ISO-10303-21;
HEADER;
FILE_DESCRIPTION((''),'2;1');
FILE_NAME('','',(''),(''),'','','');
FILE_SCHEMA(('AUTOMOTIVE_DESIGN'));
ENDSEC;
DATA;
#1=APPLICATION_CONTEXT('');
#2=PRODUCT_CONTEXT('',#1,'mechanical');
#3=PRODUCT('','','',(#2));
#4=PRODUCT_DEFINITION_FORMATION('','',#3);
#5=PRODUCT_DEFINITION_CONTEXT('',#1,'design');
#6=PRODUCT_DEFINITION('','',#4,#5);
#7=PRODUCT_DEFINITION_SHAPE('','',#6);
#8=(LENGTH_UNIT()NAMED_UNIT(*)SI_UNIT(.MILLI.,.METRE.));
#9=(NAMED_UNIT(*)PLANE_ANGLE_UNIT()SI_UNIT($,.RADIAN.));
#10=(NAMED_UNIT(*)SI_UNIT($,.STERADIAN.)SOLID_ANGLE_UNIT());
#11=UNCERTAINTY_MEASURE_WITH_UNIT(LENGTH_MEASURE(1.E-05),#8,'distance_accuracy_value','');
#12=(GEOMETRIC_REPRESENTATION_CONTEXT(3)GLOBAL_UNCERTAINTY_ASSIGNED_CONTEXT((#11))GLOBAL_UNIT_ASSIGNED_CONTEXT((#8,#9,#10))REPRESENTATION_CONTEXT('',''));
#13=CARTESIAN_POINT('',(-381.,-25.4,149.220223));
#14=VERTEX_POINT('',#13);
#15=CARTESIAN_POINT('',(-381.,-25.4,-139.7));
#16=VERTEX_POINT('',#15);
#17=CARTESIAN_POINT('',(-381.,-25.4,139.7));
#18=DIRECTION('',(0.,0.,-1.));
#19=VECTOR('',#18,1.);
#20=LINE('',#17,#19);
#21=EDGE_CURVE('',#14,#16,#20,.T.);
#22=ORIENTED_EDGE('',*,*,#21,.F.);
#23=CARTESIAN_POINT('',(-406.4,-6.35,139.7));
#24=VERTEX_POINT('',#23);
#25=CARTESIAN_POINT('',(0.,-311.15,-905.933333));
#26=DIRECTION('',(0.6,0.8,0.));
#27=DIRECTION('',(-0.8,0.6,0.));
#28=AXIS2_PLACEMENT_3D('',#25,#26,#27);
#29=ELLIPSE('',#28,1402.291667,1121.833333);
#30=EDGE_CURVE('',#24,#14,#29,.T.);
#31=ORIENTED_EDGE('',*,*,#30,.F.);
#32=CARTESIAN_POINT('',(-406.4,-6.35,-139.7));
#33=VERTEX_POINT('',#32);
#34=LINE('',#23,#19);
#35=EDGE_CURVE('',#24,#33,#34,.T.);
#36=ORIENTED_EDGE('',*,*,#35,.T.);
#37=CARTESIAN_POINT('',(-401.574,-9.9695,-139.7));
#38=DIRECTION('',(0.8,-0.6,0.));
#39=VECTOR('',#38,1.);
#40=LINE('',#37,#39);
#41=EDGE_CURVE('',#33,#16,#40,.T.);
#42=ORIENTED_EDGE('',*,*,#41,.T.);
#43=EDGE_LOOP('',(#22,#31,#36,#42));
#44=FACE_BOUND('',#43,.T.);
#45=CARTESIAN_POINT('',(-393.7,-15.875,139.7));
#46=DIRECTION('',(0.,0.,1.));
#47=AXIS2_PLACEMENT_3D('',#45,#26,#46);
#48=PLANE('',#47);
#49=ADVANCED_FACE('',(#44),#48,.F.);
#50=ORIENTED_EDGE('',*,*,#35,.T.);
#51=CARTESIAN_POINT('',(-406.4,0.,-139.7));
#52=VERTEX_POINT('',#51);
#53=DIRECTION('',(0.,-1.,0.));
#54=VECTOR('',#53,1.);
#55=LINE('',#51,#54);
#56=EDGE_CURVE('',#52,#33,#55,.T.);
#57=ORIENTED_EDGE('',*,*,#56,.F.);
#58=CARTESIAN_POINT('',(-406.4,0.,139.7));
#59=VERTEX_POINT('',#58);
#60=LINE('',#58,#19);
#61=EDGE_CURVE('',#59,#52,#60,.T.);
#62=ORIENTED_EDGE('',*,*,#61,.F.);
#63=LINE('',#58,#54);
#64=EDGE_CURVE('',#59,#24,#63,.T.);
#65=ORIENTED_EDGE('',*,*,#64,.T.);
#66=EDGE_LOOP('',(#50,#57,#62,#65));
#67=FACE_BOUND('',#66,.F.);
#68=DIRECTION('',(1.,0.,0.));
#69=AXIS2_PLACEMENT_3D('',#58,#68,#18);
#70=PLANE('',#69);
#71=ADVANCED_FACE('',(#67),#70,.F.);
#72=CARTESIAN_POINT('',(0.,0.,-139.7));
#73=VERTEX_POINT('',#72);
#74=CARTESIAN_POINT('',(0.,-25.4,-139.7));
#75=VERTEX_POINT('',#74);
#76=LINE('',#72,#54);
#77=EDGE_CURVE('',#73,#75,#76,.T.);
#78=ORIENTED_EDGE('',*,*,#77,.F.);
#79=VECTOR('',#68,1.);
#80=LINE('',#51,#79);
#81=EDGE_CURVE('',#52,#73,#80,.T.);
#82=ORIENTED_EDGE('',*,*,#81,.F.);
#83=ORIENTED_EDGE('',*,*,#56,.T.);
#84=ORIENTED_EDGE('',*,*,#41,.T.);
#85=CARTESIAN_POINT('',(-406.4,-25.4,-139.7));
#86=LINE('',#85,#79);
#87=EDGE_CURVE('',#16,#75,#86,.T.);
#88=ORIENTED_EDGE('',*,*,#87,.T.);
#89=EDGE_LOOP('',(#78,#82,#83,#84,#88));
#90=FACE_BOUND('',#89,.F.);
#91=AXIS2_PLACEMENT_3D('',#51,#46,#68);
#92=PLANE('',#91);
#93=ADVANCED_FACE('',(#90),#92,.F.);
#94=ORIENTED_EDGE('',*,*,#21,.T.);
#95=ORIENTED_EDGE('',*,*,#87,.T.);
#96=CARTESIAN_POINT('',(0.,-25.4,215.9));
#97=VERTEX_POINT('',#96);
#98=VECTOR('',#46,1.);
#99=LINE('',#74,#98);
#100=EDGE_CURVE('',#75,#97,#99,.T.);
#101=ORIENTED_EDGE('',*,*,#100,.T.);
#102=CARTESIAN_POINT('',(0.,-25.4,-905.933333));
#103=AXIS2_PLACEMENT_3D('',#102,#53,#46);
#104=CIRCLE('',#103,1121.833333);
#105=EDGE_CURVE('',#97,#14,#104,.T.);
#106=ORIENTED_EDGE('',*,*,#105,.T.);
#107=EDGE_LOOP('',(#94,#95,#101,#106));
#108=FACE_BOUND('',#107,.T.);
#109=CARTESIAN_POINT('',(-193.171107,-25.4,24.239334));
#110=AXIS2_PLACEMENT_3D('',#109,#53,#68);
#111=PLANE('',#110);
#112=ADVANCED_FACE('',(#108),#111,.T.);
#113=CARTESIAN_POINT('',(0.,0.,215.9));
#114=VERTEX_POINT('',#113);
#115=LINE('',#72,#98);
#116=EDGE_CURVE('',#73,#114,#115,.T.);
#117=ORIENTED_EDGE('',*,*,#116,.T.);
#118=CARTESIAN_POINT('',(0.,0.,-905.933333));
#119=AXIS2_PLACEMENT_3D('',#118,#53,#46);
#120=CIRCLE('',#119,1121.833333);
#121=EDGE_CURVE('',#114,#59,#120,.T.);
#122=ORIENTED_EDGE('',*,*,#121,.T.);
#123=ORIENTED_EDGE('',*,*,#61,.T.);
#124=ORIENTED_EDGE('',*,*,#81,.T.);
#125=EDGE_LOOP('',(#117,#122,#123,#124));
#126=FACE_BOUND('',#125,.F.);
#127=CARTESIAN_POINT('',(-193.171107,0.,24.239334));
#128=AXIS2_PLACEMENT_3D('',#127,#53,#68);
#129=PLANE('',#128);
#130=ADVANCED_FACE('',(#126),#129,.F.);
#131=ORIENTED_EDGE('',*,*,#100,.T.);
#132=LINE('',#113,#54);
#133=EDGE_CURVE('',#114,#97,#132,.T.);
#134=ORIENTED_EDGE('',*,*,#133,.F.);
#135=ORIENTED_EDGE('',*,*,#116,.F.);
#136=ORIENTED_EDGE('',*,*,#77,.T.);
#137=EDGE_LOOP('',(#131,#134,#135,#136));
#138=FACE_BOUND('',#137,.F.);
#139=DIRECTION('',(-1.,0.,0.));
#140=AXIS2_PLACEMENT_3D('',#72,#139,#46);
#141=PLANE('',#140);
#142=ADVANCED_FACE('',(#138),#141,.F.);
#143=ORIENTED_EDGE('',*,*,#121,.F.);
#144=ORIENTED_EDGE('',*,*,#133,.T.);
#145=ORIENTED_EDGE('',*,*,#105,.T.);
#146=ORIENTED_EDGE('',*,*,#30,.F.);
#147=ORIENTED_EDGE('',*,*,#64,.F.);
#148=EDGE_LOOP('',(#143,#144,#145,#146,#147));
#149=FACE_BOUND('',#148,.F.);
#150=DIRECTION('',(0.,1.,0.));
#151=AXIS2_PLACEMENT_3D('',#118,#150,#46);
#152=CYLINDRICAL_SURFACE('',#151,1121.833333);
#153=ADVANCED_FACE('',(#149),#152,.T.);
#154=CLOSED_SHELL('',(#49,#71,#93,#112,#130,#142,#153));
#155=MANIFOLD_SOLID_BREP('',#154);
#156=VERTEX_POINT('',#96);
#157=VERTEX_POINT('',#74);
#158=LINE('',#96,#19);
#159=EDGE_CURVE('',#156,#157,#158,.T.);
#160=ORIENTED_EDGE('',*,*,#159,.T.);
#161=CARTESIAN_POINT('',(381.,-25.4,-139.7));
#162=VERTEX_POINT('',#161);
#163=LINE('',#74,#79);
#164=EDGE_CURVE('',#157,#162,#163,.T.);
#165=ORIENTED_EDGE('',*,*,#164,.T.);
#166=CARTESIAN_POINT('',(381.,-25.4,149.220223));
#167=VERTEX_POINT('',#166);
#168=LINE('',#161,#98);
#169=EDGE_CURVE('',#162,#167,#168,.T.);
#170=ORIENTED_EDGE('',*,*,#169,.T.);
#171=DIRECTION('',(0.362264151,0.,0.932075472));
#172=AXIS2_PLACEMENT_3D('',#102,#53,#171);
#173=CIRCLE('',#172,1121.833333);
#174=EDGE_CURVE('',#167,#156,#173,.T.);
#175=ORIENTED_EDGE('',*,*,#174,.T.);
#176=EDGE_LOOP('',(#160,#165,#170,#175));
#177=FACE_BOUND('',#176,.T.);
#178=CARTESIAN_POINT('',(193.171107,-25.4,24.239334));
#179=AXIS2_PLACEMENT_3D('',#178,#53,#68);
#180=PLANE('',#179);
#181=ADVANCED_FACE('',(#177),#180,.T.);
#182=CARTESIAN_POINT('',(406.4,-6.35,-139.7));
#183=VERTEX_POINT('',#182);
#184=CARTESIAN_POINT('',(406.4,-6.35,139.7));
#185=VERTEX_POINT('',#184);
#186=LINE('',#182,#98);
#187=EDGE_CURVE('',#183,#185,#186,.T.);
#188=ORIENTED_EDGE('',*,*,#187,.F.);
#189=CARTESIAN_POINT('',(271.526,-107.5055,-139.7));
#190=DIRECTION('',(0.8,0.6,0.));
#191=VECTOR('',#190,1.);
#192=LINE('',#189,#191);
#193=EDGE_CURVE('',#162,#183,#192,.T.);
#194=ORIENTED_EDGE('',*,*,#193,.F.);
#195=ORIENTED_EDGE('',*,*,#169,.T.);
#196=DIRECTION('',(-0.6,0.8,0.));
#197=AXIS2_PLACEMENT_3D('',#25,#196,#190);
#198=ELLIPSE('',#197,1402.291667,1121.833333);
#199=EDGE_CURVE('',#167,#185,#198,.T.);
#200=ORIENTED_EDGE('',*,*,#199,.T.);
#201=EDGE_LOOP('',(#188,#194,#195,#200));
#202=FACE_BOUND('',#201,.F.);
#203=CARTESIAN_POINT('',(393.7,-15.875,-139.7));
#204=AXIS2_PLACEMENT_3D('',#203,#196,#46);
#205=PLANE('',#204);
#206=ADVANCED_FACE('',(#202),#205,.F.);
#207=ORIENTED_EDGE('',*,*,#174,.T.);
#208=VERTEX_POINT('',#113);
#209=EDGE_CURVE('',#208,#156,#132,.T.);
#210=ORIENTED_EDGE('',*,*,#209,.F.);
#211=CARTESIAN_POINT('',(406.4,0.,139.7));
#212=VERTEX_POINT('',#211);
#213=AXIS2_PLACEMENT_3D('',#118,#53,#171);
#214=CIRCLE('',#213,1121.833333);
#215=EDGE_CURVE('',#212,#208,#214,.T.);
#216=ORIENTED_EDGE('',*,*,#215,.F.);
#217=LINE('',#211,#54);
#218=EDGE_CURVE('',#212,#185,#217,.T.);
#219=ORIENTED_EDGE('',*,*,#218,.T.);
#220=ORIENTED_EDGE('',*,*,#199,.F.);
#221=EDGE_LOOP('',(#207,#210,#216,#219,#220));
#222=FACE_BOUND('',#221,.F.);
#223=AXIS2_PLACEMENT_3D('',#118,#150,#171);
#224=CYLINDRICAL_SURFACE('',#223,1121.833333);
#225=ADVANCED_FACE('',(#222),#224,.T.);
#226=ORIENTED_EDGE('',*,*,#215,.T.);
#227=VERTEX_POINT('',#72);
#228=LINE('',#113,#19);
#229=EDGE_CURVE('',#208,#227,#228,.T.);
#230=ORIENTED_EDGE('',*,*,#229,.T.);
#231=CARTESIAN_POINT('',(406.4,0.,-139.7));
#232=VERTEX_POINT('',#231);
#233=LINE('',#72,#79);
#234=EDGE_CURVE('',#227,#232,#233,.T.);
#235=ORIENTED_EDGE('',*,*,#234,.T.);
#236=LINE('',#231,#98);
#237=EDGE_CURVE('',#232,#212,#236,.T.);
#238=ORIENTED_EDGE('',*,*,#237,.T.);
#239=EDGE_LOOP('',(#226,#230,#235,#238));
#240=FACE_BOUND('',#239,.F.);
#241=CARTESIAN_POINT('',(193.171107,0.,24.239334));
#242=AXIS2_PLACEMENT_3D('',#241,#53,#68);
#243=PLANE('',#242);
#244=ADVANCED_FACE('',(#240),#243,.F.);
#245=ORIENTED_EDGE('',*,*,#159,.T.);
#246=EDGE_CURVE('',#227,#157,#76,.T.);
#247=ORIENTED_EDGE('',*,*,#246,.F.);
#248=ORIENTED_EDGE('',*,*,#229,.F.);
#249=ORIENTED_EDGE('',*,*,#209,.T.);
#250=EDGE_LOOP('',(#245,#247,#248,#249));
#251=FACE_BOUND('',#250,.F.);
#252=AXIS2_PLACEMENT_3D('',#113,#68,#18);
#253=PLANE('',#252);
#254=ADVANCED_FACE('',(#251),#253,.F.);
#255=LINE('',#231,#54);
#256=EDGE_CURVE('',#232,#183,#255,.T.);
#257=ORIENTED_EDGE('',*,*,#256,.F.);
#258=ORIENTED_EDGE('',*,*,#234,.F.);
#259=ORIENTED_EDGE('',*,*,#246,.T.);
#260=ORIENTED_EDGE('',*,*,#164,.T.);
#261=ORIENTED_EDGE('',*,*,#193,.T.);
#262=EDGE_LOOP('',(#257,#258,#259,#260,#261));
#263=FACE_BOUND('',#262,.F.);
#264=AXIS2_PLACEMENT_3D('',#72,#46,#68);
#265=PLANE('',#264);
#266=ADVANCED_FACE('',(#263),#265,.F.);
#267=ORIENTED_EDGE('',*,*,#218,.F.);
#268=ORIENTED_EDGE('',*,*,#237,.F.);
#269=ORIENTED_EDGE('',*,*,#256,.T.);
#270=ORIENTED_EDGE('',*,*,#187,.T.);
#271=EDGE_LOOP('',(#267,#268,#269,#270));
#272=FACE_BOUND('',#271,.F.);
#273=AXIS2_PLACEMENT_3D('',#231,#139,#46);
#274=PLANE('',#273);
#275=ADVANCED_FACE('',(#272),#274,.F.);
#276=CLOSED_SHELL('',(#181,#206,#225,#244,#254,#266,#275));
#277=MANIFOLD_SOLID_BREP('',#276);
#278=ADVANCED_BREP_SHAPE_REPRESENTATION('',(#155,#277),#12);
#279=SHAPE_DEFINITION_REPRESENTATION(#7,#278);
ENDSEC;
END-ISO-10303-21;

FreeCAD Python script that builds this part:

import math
import FreeCAD as App
import Part
import Sketcher
from FreeCAD import Vector
Q = App.Units.Quantity


def edges_at(feature, points):
    """Names of the edges that pass closest to the given points."""
    edges = feature.Shape.Edges
    near = lambda p: min(range(len(edges)), key=lambda i: edges[i].distToShape(Part.Vertex(*p))[0])
    return sorted({f"Edge{near(p) + 1}" for p in points})

doc = App.newDocument("Part")
body = doc.addObject("PartDesign::Body", "Body")

sketch1 = doc.addObject("Sketcher::SketchObject", "Sketch")
body.addObject(sketch1)
sketch1.AttachmentSupport = (doc.XZ_Plane, [""])
sketch1.MapMode = "FlatFace"
sketch1.addGeometry([
    Part.LineSegment(Vector(-406, -140, 0), Vector(0, -140, 0)),
    Part.LineSegment(Vector(0, -140, 0), Vector(0, 216, 0)),
    Part.ArcOfCircle(Part.Circle(Vector(0, -906, 0), Vector(0, 0, 1), 1122), math.radians(90), math.radians(111)),
    Part.LineSegment(Vector(-406, 140, 0), Vector(-406, -140, 0)),
], False)
sketch1.addConstraint([
    Sketcher.Constraint("Coincident", 0, 2, 1, 1),
    Sketcher.Constraint("Coincident", 1, 2, 2, 1),
    Sketcher.Constraint("Coincident", 2, 2, 3, 1),
    Sketcher.Constraint("Coincident", 3, 2, 0, 1),
    Sketcher.Constraint("Horizontal", 0),
    Sketcher.Constraint("Vertical", 1),
    Sketcher.Constraint("Vertical", 3),
    Sketcher.Constraint("PointOnObject", 2, 3, -2),
    Sketcher.Constraint("PointOnObject", 0, 2, -2),
    Sketcher.Constraint("DistanceX", 0, 1, 0, 2, Q("16 in")),
    Sketcher.Constraint("DistanceY", 1, 1, 1, 2, Q("14 in")),
    Sketcher.Constraint("DistanceY", 3, 2, 3, 1, Q("11 in")),
    Sketcher.Constraint("DistanceY", 0, 2, -1, 1, Q("5.5 in")),
])
pad1 = doc.addObject("PartDesign::Pad", "Pad")
body.addObject(pad1)
pad1.Profile = sketch1
pad1.Length = Q("1 in")
doc.recompute()

chamfer = doc.addObject("PartDesign::Chamfer", "Chamfer")
body.addObject(chamfer)
chamfer.Base = (pad1, edges_at(pad1, [(-406.4, -25.4, 0)]))
chamfer.ChamferType = "Two distances"
chamfer.Size = Q("0.75 in")
chamfer.Size2 = Q("1 in")
body2 = doc.addObject("PartDesign::Body", "Body001")

sketch2 = doc.addObject("Sketcher::SketchObject", "Sketch001")
body2.addObject(sketch2)
sketch2.AttachmentSupport = (doc.getObject("XZ_Plane001"), [""])
sketch2.MapMode = "FlatFace"
sketch2.addGeometry([
    Part.LineSegment(Vector(0, -140, 0), Vector(406, -140, 0)),
    Part.LineSegment(Vector(406, -140, 0), Vector(406, 140, 0)),
    Part.ArcOfCircle(Part.Circle(Vector(0, -906, 0), Vector(0, 0, 1), 1122), math.radians(69), math.radians(90)),
    Part.LineSegment(Vector(0, 216, 0), Vector(0, -140, 0)),
], False)
sketch2.addConstraint([
    Sketcher.Constraint("Coincident", 0, 2, 1, 1),
    Sketcher.Constraint("Coincident", 1, 2, 2, 1),
    Sketcher.Constraint("Coincident", 2, 2, 3, 1),
    Sketcher.Constraint("Coincident", 3, 2, 0, 1),
    Sketcher.Constraint("Horizontal", 0),
    Sketcher.Constraint("Vertical", 1),
    Sketcher.Constraint("Vertical", 3),
    Sketcher.Constraint("PointOnObject", 2, 3, -2),
    Sketcher.Constraint("PointOnObject", 3, 2, -2),
    Sketcher.Constraint("DistanceX", 0, 1, 0, 2, Q("16 in")),
    Sketcher.Constraint("DistanceY", 1, 1, 1, 2, Q("11 in")),
    Sketcher.Constraint("DistanceY", 3, 2, 3, 1, Q("14 in")),
    Sketcher.Constraint("DistanceY", 0, 2, -1, 1, Q("5.5 in")),
])
pad2 = doc.addObject("PartDesign::Pad", "Pad001")
body2.addObject(pad2)
pad2.Profile = sketch2
pad2.Length = Q("1 in")
doc.recompute()

chamfer2 = doc.addObject("PartDesign::Chamfer", "Chamfer001")
body2.addObject(chamfer2)
chamfer2.Base = (pad2, edges_at(pad2, [(406.4, -25.4, 0)]))
chamfer2.ChamferType = "Two distances"
chamfer2.Size = Q("1 in")
chamfer2.Size2 = Q("0.75 in")
chamfer2.FlipDirection = True

doc.recompute()
